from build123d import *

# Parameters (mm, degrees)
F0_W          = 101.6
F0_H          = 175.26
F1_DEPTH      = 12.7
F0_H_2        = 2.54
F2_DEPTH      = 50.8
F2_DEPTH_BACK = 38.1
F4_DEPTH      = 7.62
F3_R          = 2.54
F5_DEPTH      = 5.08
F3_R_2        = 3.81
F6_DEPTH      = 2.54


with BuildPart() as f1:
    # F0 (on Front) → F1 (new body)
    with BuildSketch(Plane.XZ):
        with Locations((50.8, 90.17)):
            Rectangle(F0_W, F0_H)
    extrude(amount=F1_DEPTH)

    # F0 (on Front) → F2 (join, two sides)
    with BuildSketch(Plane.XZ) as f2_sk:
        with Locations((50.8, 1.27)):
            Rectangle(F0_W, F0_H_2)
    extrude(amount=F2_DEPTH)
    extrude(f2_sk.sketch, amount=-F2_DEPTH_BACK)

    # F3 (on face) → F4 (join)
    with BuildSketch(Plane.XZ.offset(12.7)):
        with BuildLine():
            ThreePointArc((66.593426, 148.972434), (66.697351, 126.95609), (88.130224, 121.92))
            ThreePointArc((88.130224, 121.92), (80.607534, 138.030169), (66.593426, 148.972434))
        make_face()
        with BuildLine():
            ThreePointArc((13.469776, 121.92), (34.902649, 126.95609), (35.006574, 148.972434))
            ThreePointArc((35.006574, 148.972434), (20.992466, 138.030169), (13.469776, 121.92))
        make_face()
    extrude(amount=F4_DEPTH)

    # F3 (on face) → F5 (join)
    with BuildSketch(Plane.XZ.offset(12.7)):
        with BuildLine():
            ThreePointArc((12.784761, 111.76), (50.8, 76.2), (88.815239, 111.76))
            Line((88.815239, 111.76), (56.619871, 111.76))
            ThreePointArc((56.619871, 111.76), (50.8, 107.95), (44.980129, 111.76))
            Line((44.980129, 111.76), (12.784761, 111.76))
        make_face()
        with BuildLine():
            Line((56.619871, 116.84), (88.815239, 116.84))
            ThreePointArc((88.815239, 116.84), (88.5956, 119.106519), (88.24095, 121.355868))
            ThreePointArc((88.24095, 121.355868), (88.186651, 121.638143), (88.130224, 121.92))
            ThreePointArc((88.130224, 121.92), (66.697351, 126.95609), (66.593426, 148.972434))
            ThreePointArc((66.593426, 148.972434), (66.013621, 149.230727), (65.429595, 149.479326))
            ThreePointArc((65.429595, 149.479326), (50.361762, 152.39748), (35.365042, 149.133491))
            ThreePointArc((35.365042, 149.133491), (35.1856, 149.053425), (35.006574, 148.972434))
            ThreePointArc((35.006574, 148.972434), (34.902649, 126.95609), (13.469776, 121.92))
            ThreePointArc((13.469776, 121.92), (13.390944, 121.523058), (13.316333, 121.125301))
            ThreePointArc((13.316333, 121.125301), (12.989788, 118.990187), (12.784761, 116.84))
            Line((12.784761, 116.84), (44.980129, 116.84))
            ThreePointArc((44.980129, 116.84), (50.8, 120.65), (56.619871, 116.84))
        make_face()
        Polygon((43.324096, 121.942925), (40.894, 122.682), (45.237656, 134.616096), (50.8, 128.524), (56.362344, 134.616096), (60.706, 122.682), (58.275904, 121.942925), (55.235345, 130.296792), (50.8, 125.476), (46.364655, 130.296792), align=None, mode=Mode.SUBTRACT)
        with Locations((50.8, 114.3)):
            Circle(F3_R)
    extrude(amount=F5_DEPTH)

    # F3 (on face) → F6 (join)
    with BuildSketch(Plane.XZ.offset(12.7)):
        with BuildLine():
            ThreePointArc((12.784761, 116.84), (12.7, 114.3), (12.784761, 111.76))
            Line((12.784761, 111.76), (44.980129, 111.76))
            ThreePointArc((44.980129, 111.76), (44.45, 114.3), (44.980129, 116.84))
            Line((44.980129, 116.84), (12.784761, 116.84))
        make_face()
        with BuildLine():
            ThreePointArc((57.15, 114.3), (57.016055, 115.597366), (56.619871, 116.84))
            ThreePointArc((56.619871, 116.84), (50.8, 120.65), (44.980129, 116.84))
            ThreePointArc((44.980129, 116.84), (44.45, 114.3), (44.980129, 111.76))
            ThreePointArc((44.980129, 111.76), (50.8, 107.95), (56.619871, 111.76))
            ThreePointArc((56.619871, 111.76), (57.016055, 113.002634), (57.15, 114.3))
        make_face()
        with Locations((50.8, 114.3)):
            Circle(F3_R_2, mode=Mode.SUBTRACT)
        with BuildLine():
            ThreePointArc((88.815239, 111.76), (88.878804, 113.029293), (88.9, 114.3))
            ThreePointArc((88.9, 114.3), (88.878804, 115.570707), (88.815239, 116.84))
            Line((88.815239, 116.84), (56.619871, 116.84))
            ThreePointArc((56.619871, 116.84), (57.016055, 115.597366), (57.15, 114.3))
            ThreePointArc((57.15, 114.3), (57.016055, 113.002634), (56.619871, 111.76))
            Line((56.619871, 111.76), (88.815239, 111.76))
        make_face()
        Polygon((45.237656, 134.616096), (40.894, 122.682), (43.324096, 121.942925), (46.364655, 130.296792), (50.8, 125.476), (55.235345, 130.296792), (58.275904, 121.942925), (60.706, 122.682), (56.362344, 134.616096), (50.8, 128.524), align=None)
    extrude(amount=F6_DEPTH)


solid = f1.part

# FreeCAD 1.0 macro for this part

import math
import FreeCAD as App
import Part
import Sketcher
Q = App.Units.Quantity

doc = App.newDocument("Part")
body = doc.addObject("PartDesign::Body", "Body")

# Sketch on XZ plane
sketch1 = body.newObject("Sketcher::SketchObject", "Sketch")
sketch1.AttachmentSupport = (doc.getObject("XZ_Plane"), [""])
sketch1.MapMode = "FlatFace"
sketch1.addGeometry(Part.LineSegment(App.Vector(0, 178, 0), App.Vector(0, 3, 0)), False)
sketch1.addGeometry(Part.LineSegment(App.Vector(0, 3, 0), App.Vector(102, 3, 0)), False)
sketch1.addGeometry(Part.LineSegment(App.Vector(102, 3, 0), App.Vector(102, 178, 0)), False)
sketch1.addGeometry(Part.LineSegment(App.Vector(102, 178, 0), App.Vector(0, 178, 0)), False)
sketch1.addConstraint(Sketcher.Constraint("Coincident", 0, 2, 1, 1))
sketch1.addConstraint(Sketcher.Constraint("Coincident", 1, 2, 2, 1))
sketch1.addConstraint(Sketcher.Constraint("Coincident", 2, 2, 3, 1))
sketch1.addConstraint(Sketcher.Constraint("Coincident", 3, 2, 0, 1))
sketch1.addConstraint(Sketcher.Constraint("Vertical", 0))
sketch1.addConstraint(Sketcher.Constraint("Horizontal", 1))
sketch1.addConstraint(Sketcher.Constraint("Vertical", 2))
sketch1.addConstraint(Sketcher.Constraint("Horizontal", 3))
sketch1.addConstraint(Sketcher.Constraint("PointOnObject", 0, 2, -2))
sketch1.addConstraint(Sketcher.Constraint("DistanceX", 1, 1, 1, 2, Q("4 in")))
sketch1.addConstraint(Sketcher.Constraint("DistanceY", 0, 2, 0, 1, Q("6.9 in")))
sketch1.addConstraint(Sketcher.Constraint("DistanceY", -1, 1, 2, 2, Q("7 in")))
pad1 = body.newObject("PartDesign::Pad", "Pad")
pad1.Profile = sketch1
pad1.Length = Q("0.5 in")

# Sketch on XZ plane
sketch2 = body.newObject("Sketcher::SketchObject", "Sketch001")
sketch2.AttachmentSupport = (doc.getObject("XZ_Plane"), [""])
sketch2.MapMode = "FlatFace"
sketch2.addGeometry(Part.LineSegment(App.Vector(0, 2.5, 0), App.Vector(0, 0, 0)), False)
sketch2.addGeometry(Part.LineSegment(App.Vector(0, 0, 0), App.Vector(101.6, 0, 0)), False)
sketch2.addGeometry(Part.LineSegment(App.Vector(101.6, 0, 0), App.Vector(101.6, 2.5, 0)), False)
sketch2.addGeometry(Part.LineSegment(App.Vector(101.6, 2.5, 0), App.Vector(0, 2.5, 0)), False)
sketch2.addConstraint(Sketcher.Constraint("Coincident", 0, 2, 1, 1))
sketch2.addConstraint(Sketcher.Constraint("Coincident", 1, 2, 2, 1))
sketch2.addConstraint(Sketcher.Constraint("Coincident", 2, 2, 3, 1))
sketch2.addConstraint(Sketcher.Constraint("Coincident", 3, 2, 0, 1))
sketch2.addConstraint(Sketcher.Constraint("Vertical", 0))
sketch2.addConstraint(Sketcher.Constraint("Horizontal", 1))
sketch2.addConstraint(Sketcher.Constraint("Vertical", 2))
sketch2.addConstraint(Sketcher.Constraint("Horizontal", 3))
sketch2.addConstraint(Sketcher.Constraint("Coincident", 0, 2, -1, 1))
sketch2.addConstraint(Sketcher.Constraint("DistanceX", 1, 1, 1, 2, Q("4 in")))
sketch2.addConstraint(Sketcher.Constraint("DistanceY", 0, 2, 0, 1, Q("0.1 in")))
pad2 = body.newObject("PartDesign::Pad", "Pad001")
pad2.Profile = sketch2
pad2.Type = "TwoLengths"
pad2.Length = Q("2 in")
pad2.Length2 = Q("1.5 in")

# Sketch on XZ plane
sketch3 = body.newObject("Sketcher::SketchObject", "Sketch002")
sketch3.AttachmentSupport = (doc.getObject("XZ_Plane"), [""])
sketch3.MapMode = "FlatFace"
sketch3.AttachmentOffset = App.Placement(App.Vector(0, 0, 0.5 * 25.4), App.Rotation())
sketch3.addGeometry(Part.ArcOfCircle(Part.Circle(App.Vector(81, 138, 0), App.Vector(0, 0, 1), 18), math.radians(142), math.radians(295)), False)
sketch3.addGeometry(Part.ArcOfCircle(Part.Circle(App.Vector(51, 114, 0), App.Vector(0, 0, 1), 38), math.radians(12), math.radians(66)), False)
sketch3.addGeometry(Part.ArcOfCircle(Part.Circle(App.Vector(21, 138, 0), App.Vector(0, 0, 1), 18), math.radians(-115), math.radians(38)), False)
sketch3.addGeometry(Part.ArcOfCircle(Part.Circle(App.Vector(51, 114, 0), App.Vector(0, 0, 1), 38), math.radians(114), math.radians(168)), False)
sketch3.addConstraint(Sketcher.Constraint("Coincident", 0, 1, 1, 2))
sketch3.addConstraint(Sketcher.Constraint("Coincident", 1, 1, 0, 2))
sketch3.addConstraint(Sketcher.Constraint("Coincident", 2, 1, 3, 2))
sketch3.addConstraint(Sketcher.Constraint("Coincident", 3, 1, 2, 2))
sketch3.addConstraint(Sketcher.Constraint("Coincident", 3, 3, 1, 3))
sketch3.addConstraint(Sketcher.Constraint("Equal", 0, 2))
sketch3.addConstraint(Sketcher.Constraint("Equal", 1, 3))
sketch3.addConstraint(Sketcher.Constraint("Horizontal", 0, 3, 2, 3))
sketch3.addConstraint(Sketcher.Constraint("Horizontal", 1, 1, 2, 1))
sketch3.addConstraint(Sketcher.Constraint("Radius", 0, Q("0.7 in")))
sketch3.addConstraint(Sketcher.Constraint("Radius", 1, Q("1.5 in")))
sketch3.addConstraint(Sketcher.Constraint("DistanceX", -1, 1, 1, 3, Q("2 in")))
sketch3.addConstraint(Sketcher.Constraint("DistanceY", -1, 1, 1, 3, Q("4.5 in")))
sketch3.addConstraint(Sketcher.Constraint("DistanceY", -1, 1, 1, 1, Q("4.8 in")))
sketch3.addConstraint(Sketcher.Constraint("DistanceX", 0, 1, 1, 1, 21.536798))
pad3 = body.newObject("PartDesign::Pad", "Pad002")
pad3.Profile = sketch3
pad3.Length = Q("0.3 in")

# Sketch on XZ plane
sketch4 = body.newObject("Sketcher::SketchObject", "Sketch003")
sketch4.AttachmentSupport = (doc.getObject("XZ_Plane"), [""])
sketch4.MapMode = "FlatFace"
sketch4.AttachmentOffset = App.Placement(App.Vector(0, 0, 0.5 * 25.4), App.Rotation())
sketch4.addGeometry(Part.ArcOfCircle(Part.Circle(App.Vector(50.8, 114.3, 0), App.Vector(0, 0, 1), 38.1), math.radians(-176), math.radians(-4)), False)
sketch4.addGeometry(Part.LineSegment(App.Vector(88.82, 111.76, 0), App.Vector(56.62, 111.76, 0)), False)
sketch4.addGeometry(Part.ArcOfCircle(Part.Circle(App.Vector(50.8, 114.3, 0), App.Vector(0, 0, 1), 6.35), math.radians(-156), math.radians(-24)), False)
sketch4.addGeometry(Part.LineSegment(App.Vector(44.98, 111.76, 0), App.Vector(12.78, 111.76, 0)), False)
sketch4.addGeometry(Part.LineSegment(App.Vector(56.62, 116.84, 0), App.Vector(88.82, 116.84, 0)), False)
sketch4.addGeometry(Part.ArcOfCircle(Part.Circle(App.Vector(50.8, 114.3, 0), App.Vector(0, 0, 1), 38.1), math.radians(3.82), math.radians(10.67)), False)
sketch4.addGeometry(Part.ArcOfCircle(Part.Circle(App.Vector(50.8, 114.3, 0), App.Vector(0, 0, 1), 38.1), math.radians(10.67), math.radians(11.54)), False)
sketch4.addGeometry(Part.ArcOfCircle(Part.Circle(App.Vector(80.61, 138.03, 0), App.Vector(0, 0, 1), 17.78), math.radians(142), math.radians(295)), False)
sketch4.addGeometry(Part.ArcOfCircle(Part.Circle(App.Vector(50.8, 114.3, 0), App.Vector(0, 0, 1), 38.11), math.radians(65.51), math.radians(67.42)), False)
sketch4.addGeometry(Part.ArcOfCircle(Part.Circle(App.Vector(50.8, 114.3, 0), App.Vector(0, 0, 1), 38.1), math.radians(67), math.radians(114)), False)
sketch4.addGeometry(Part.ArcOfCircle(Part.Circle(App.Vector(50.79, 114.33, 0), App.Vector(0, 0, 1), 38.07), math.radians(113.9), math.radians(114.49)), False)
sketch4.addGeometry(Part.ArcOfCircle(Part.Circle(App.Vector(20.99, 138.03, 0), App.Vector(0, 0, 1), 17.78), math.radians(-115), math.radians(38)), False)
sketch4.addGeometry(Part.ArcOfCircle(Part.Circle(App.Vector(50.8, 114.3, 0), App.Vector(0, 0, 1), 38.1), math.radians(168.46), math.radians(169.68)), False)
sketch4.addGeometry(Part.ArcOfCircle(Part.Circle(App.Vector(50.8, 114.3, 0), App.Vector(0, 0, 1), 38.1), math.radians(169.68), math.radians(176.18)), False)
sketch4.addGeometry(Part.LineSegment(App.Vector(12.78, 116.84, 0), App.Vector(44.98, 116.84, 0)), False)
sketch4.addGeometry(Part.ArcOfCircle(Part.Circle(App.Vector(50.8, 114.3, 0), App.Vector(0, 0, 1), 6.35), math.radians(24), math.radians(156)), False)
sketch4.addGeometry(Part.LineSegment(App.Vector(46.36, 130.3, 0), App.Vector(43.32, 121.94, 0)), False)
sketch4.addGeometry(Part.LineSegment(App.Vector(43.32, 121.94, 0), App.Vector(40.89, 122.68, 0)), False)
sketch4.addGeometry(Part.LineSegment(App.Vector(40.89, 122.68, 0), App.Vector(45.24, 134.62, 0)), False)
sketch4.addGeometry(Part.LineSegment(App.Vector(45.24, 134.62, 0), App.Vector(50.8, 128.52, 0)), False)
sketch4.addGeometry(Part.LineSegment(App.Vector(50.8, 128.52, 0), App.Vector(56.36, 134.62, 0)), False)
sketch4.addGeometry(Part.LineSegment(App.Vector(56.36, 134.62, 0), App.Vector(60.71, 122.68, 0)), False)
sketch4.addGeometry(Part.LineSegment(App.Vector(60.71, 122.68, 0), App.Vector(58.28, 121.94, 0)), False)
sketch4.addGeometry(Part.LineSegment(App.Vector(58.28, 121.94, 0), App.Vector(55.24, 130.3, 0)), False)
sketch4.addGeometry(Part.LineSegment(App.Vector(55.24, 130.3, 0), App.Vector(50.8, 125.48, 0)), False)
sketch4.addGeometry(Part.LineSegment(App.Vector(50.8, 125.48, 0), App.Vector(46.36, 130.3, 0)), False)
sketch4.addGeometry(Part.Circle(App.Vector(50.8, 114.3, 0), App.Vector(0, 0, 1), 2.54), False)
sketch4.addConstraint(Sketcher.Constraint("Coincident", 0, 2, 1, 1))
sketch4.addConstraint(Sketcher.Constraint("Coincident", 1, 2, 2, 2))
sketch4.addConstraint(Sketcher.Constraint("Coincident", 2, 1, 3, 1))
sketch4.addConstraint(Sketcher.Constraint("Coincident", 3, 2, 0, 1))
sketch4.addConstraint(Sketcher.Constraint("Coincident", 4, 2, 5, 1))
sketch4.addConstraint(Sketcher.Constraint("Tangent", 5, 2, 6, 1))
sketch4.addConstraint(Sketcher.Constraint("Coincident", 6, 2, 7, 2))
sketch4.addConstraint(Sketcher.Constraint("Coincident", 7, 1, 8, 1))
sketch4.addConstraint(Sketcher.Constraint("Coincident", 8, 2, 9, 1))
sketch4.addConstraint(Sketcher.Constraint("Coincident", 9, 2, 10, 1))
sketch4.addConstraint(Sketcher.Constraint("Coincident", 10, 2, 11, 2))
sketch4.addConstraint(Sketcher.Constraint("Coincident", 11, 1, 12, 1))
sketch4.addConstraint(Sketcher.Constraint("Tangent", 12, 2, 13, 1))
sketch4.addConstraint(Sketcher.Constraint("Coincident", 13, 2, 14, 1))
sketch4.addConstraint(Sketcher.Constraint("Coincident", 14, 2, 15, 2))
sketch4.addConstraint(Sketcher.Constraint("Coincident", 15, 1, 4, 1))
sketch4.addConstraint(Sketcher.Constraint("Coincident", 16, 2, 17, 1))
sketch4.addConstraint(Sketcher.Constraint("Coincident", 17, 2, 18, 1))
sketch4.addConstraint(Sketcher.Constraint("Coincident", 18, 2, 19, 1))
sketch4.addConstraint(Sketcher.Constraint("Coincident", 19, 2, 20, 1))
sketch4.addConstraint(Sketcher.Constraint("Coincident", 20, 2, 21, 1))
sketch4.addConstraint(Sketcher.Constraint("Coincident", 21, 2, 22, 1))
sketch4.addConstraint(Sketcher.Constraint("Coincident", 22, 2, 23, 1))
sketch4.addConstraint(Sketcher.Constraint("Coincident", 23, 2, 24, 1))
sketch4.addConstraint(Sketcher.Constraint("Coincident", 24, 2, 25, 1))
sketch4.addConstraint(Sketcher.Constraint("Coincident", 25, 2, 16, 1))
sketch4.addConstraint(Sketcher.Constraint("Horizontal", 1))
sketch4.addConstraint(Sketcher.Constraint("Horizontal", 3))
sketch4.addConstraint(Sketcher.Constraint("Horizontal", 4))
sketch4.addConstraint(Sketcher.Constraint("Horizontal", 14))
sketch4.addConstraint(Sketcher.Constraint("Coincident", 2, 3, 0, 3))
sketch4.addConstraint(Sketcher.Constraint("Coincident", 5, 3, 0, 3))
sketch4.addConstraint(Sketcher.Constraint("Coincident", 9, 3, 0, 3))
sketch4.addConstraint(Sketcher.Constraint("Coincident", 15, 3, 0, 3))
sketch4.addConstraint(Sketcher.Constraint("Coincident", 26, 3, 0, 3))
sketch4.addConstraint(Sketcher.Constraint("Equal", 0, 9))
sketch4.addConstraint(Sketcher.Constraint("Equal", 7, 11))
sketch4.addConstraint(Sketcher.Constraint("Equal", 2, 15))
sketch4.addConstraint(Sketcher.Constraint("Parallel", 16, 18))
sketch4.addConstraint(Sketcher.Constraint("Parallel", 21, 23))
sketch4.addConstraint(Sketcher.Constraint("Horizontal", 7, 3, 11, 3))
sketch4.addConstraint(Sketcher.Constraint("Horizontal", 1, 2, 2, 1))
sketch4.addConstraint(Sketcher.Constraint("Horizontal", 7, 1, 10, 2))
sketch4.addConstraint(Sketcher.Constraint("Horizontal", 6, 2, 11, 1))
sketch4.addConstraint(Sketcher.Constraint("Horizontal", 4, 2, 13, 2))
sketch4.addConstraint(Sketcher.Constraint("Horizontal", 18, 2, 20, 2))
sketch4.addConstraint(Sketcher.Constraint("Horizontal", 17, 2, 21, 2))
sketch4.addConstraint(Sketcher.Constraint("Horizontal", 16, 2, 22, 2))
sketch4.addConstraint(Sketcher.Constraint("Horizontal", 23, 2, 25, 2))
sketch4.addConstraint(Sketcher.Constraint("Vertical", 0, 2, 4, 2))
sketch4.addConstraint(Sketcher.Constraint("Vertical", 3, 2, 13, 2))
sketch4.addConstraint(Sketcher.Constraint("Vertical", 2, 1, 14, 2))
sketch4.addConstraint(Sketcher.Constraint("Vertical", 26, 3, 19, 2))
sketch4.addConstraint(Sketcher.Constraint("Vertical", 19, 2, 24, 2))
sketch4.addConstraint(Sketcher.Constraint("Equal", 19, 20))
sketch4.addConstraint(Sketcher.Constraint("Equal", 18, 21))
sketch4.addConstraint(Sketcher.Constraint("Equal", 17, 22))
sketch4.addConstraint(Sketcher.Constraint("Diameter", 26, Q("0.2 in")))
sketch4.addConstraint(Sketcher.Constraint("Radius", 0, Q("1.5 in")))
sketch4.addConstraint(Sketcher.Constraint("Radius", 7, Q("0.7 in")))
sketch4.addConstraint(Sketcher.Constraint("Radius", 2, Q("0.25 in")))
sketch4.addConstraint(Sketcher.Constraint("DistanceX", -1, 1, 0, 3, Q("2 in")))
sketch4.addConstraint(Sketcher.Constraint("Angle", 16, Q("-110 deg")))
sketch4.addConstraint(Sketcher.Constraint("Distance", 17, Q("0.1 in")))
sketch4.addConstraint(Sketcher.Constraint("Distance", 18, Q("0.5 in")))
sketch4.addConstraint(Sketcher.Constraint("DistanceY", -1, 1, 0, 3, Q("4.5 in")))
sketch4.addConstraint(Sketcher.Constraint("DistanceY", -1, 1, 0, 2, Q("4.4 in")))
sketch4.addConstraint(Sketcher.Constraint("DistanceY", -1, 1, 6, 2, Q("4.8 in")))
sketch4.addConstraint(Sketcher.Constraint("Distance", 16, Q("0.35 in")))
sketch4.addConstraint(Sketcher.Constraint("DistanceX", -1, 1, 17, 2, Q("1.61 in")))
sketch4.addConstraint(Sketcher.Constraint("DistanceY", -1, 1, 17, 2, Q("4.83 in")))
sketch4.addConstraint(Sketcher.Constraint("DistanceY", -1, 1, 19, 2, Q("5.06 in")))
sketch4.addConstraint(Sketcher.Constraint("DistanceY", -1, 1, 24, 2, Q("4.94 in")))
sketch4.addConstraint(Sketcher.Constraint("Radius", 8, 38.105041))
sketch4.addConstraint(Sketcher.Constraint("Radius", 12, 38.09698))
sketch4.addConstraint(Sketcher.Constraint("Radius", 6, 38.100613))
sketch4.addConstraint(Sketcher.Constraint("Radius", 10, 38.067873))
sketch4.addConstraint(Sketcher.Constraint("Radius", 13, 38.100206))
sketch4.addConstraint(Sketcher.Constraint("DistanceY", -1, 1, 12, 2, 121.125301))
sketch4.addConstraint(Sketcher.Constraint("DistanceY", 5, 2, 7, 3, 16.6743))
sketch4.addConstraint(Sketcher.Constraint("DistanceY", 10, 3, 8, 2, 35.15))
sketch4.addConstraint(Sketcher.Constraint("DistanceY", 10, 3, 16, 2, 7.613599))
sketch4.addConstraint(Sketcher.Constraint("DistanceX", 16, 2, 6, 3, 7.4753))
sketch4.addConstraint(Sketcher.Constraint("DistanceY", -1, 1, 7, 3, 138.030168))
sketch4.addConstraint(Sketcher.Constraint("DistanceX", -1, 1, 8, 3, 50.797971))
sketch4.addConstraint(Sketcher.Constraint("DistanceX", -1, 1, 9, 2, 35.365042))
pad4 = body.newObject("PartDesign::Pad", "Pad003")
pad4.Profile = sketch4
pad4.Length = Q("0.2 in")

# Sketch on XZ plane
sketch5 = body.newObject("Sketcher::SketchObject", "Sketch004")
sketch5.AttachmentSupport = (doc.getObject("XZ_Plane"), [""])
sketch5.MapMode = "FlatFace"
sketch5.AttachmentOffset = App.Placement(App.Vector(0, 0, 0.5 * 25.4), App.Rotation())
sketch5.addGeometry(Part.ArcOfCircle(Part.Circle(App.Vector(50.8, 114.3, 0), App.Vector(0, 0, 1), 38.1), math.radians(176.18), math.radians(183.82)), False)
sketch5.addGeometry(Part.LineSegment(App.Vector(12.8, 111.8, 0), App.Vector(45, 111.8, 0)), False)
sketch5.addGeometry(Part.ArcOfCircle(Part.Circle(App.Vector(50.8, 114.3, 0), App.Vector(0, 0, 1), 6.3), math.radians(-156), math.radians(-24)), False)
sketch5.addGeometry(Part.LineSegment(App.Vector(56.6, 111.8, 0), App.Vector(88.8, 111.8, 0)), False)
sketch5.addGeometry(Part.ArcOfCircle(Part.Circle(App.Vector(50.8, 114.3, 0), App.Vector(0, 0, 1), 38.1), math.radians(-3.82), math.radians(0)), False)
sketch5.addGeometry(Part.ArcOfCircle(Part.Circle(App.Vector(50.8, 114.3, 0), App.Vector(0, 0, 1), 38.1), math.radians(0), math.radians(3.82)), False)
sketch5.addGeometry(Part.LineSegment(App.Vector(88.8, 116.8, 0), App.Vector(56.6, 116.8, 0)), False)
sketch5.addGeometry(Part.ArcOfCircle(Part.Circle(App.Vector(50.8, 114.3, 0), App.Vector(0, 0, 1), 6.3), math.radians(24), math.radians(156)), False)
sketch5.addGeometry(Part.LineSegment(App.Vector(45, 116.8, 0), App.Vector(12.8, 116.8, 0)), False)
sketch5.addGeometry(Part.Circle(App.Vector(50.8, 114.3, 0), App.Vector(0, 0, 1), 3.8), False)
sketch5.addGeometry(Part.LineSegment(App.Vector(45.2, 134.6, 0), App.Vector(40.9, 122.7, 0)), False)
sketch5.addGeometry(Part.LineSegment(App.Vector(40.9, 122.7, 0), App.Vector(43.3, 121.9, 0)), False)
sketch5.addGeometry(Part.LineSegment(App.Vector(43.3, 121.9, 0), App.Vector(46.4, 130.3, 0)), False)
sketch5.addGeometry(Part.LineSegment(App.Vector(46.4, 130.3, 0), App.Vector(50.8, 125.5, 0)), False)
sketch5.addGeometry(Part.LineSegment(App.Vector(50.8, 125.5, 0), App.Vector(55.2, 130.3, 0)), False)
sketch5.addGeometry(Part.LineSegment(App.Vector(55.2, 130.3, 0), App.Vector(58.3, 121.9, 0)), False)
sketch5.addGeometry(Part.LineSegment(App.Vector(58.3, 121.9, 0), App.Vector(60.7, 122.7, 0)), False)
sketch5.addGeometry(Part.LineSegment(App.Vector(60.7, 122.7, 0), App.Vector(56.4, 134.6, 0)), False)
sketch5.addGeometry(Part.LineSegment(App.Vector(56.4, 134.6, 0), App.Vector(50.8, 128.5, 0)), False)
sketch5.addGeometry(Part.LineSegment(App.Vector(50.8, 128.5, 0), App.Vector(45.2, 134.6, 0)), False)
sketch5.addConstraint(Sketcher.Constraint("Coincident", 0, 2, 1, 1))
sketch5.addConstraint(Sketcher.Constraint("Coincident", 1, 2, 2, 1))
sketch5.addConstraint(Sketcher.Constraint("Coincident", 2, 2, 3, 1))
sketch5.addConstraint(Sketcher.Constraint("Coincident", 3, 2, 4, 1))
sketch5.addConstraint(Sketcher.Constraint("Tangent", 4, 2, 5, 1))
sketch5.addConstraint(Sketcher.Constraint("Coincident", 5, 2, 6, 1))
sketch5.addConstraint(Sketcher.Constraint("Coincident", 6, 2, 7, 1))
sketch5.addConstraint(Sketcher.Constraint("Coincident", 7, 2, 8, 1))
sketch5.addConstraint(Sketcher.Constraint("Coincident", 8, 2, 0, 1))
sketch5.addConstraint(Sketcher.Constraint("Coincident", 10, 2, 11, 1))
sketch5.addConstraint(Sketcher.Constraint("Coincident", 11, 2, 12, 1))
sketch5.addConstraint(Sketcher.Constraint("Coincident", 12, 2, 13, 1))
sketch5.addConstraint(Sketcher.Constraint("Coincident", 13, 2, 14, 1))
sketch5.addConstraint(Sketcher.Constraint("Coincident", 14, 2, 15, 1))
sketch5.addConstraint(Sketcher.Constraint("Coincident", 15, 2, 16, 1))
sketch5.addConstraint(Sketcher.Constraint("Coincident", 16, 2, 17, 1))
sketch5.addConstraint(Sketcher.Constraint("Coincident", 17, 2, 18, 1))
sketch5.addConstraint(Sketcher.Constraint("Coincident", 18, 2, 19, 1))
sketch5.addConstraint(Sketcher.Constraint("Coincident", 19, 2, 10, 1))
sketch5.addConstraint(Sketcher.Constraint("Horizontal", 1))
sketch5.addConstraint(Sketcher.Constraint("Horizontal", 3))
sketch5.addConstraint(Sketcher.Constraint("Horizontal", 6))
sketch5.addConstraint(Sketcher.Constraint("Horizontal", 8))
sketch5.addConstraint(Sketcher.Constraint("Coincident", 7, 3, 2, 3))
sketch5.addConstraint(Sketcher.Constraint("Coincident", 9, 3, 2, 3))
sketch5.addConstraint(Sketcher.Constraint("Equal", 4, 5))
sketch5.addConstraint(Sketcher.Constraint("Equal", 2, 7))
sketch5.addConstraint(Sketcher.Constraint("Parallel", 10, 12))
sketch5.addConstraint(Sketcher.Constraint("Parallel", 15, 17))
sketch5.addConstraint(Sketcher.Constraint("Horizontal", 0, 3, 2, 3))
sketch5.addConstraint(Sketcher.Constraint("Horizontal", 1, 2, 2, 2))
sketch5.addConstraint(Sketcher.Constraint("Horizontal", 9, 3, 4, 2))
sketch5.addConstraint(Sketcher.Constraint("Horizontal", 6, 2, 7, 2))
sketch5.addConstraint(Sketcher.Constraint("Horizontal", 12, 2, 14, 2))
sketch5.addConstraint(Sketcher.Constraint("Horizontal", 11, 2, 15, 2))
sketch5.addConstraint(Sketcher.Constraint("Horizontal", 10, 2, 16, 2))
sketch5.addConstraint(Sketcher.Constraint("Horizontal", 17, 2, 19, 2))
sketch5.addConstraint(Sketcher.Constraint("Vertical", 3, 2, 5, 2))
sketch5.addConstraint(Sketcher.Constraint("Vertical", 2, 2, 6, 2))
sketch5.addConstraint(Sketcher.Constraint("Vertical", 9, 3, 13, 2))
sketch5.addConstraint(Sketcher.Constraint("Vertical", 13, 2, 18, 2))
sketch5.addConstraint(Sketcher.Constraint("Equal", 1, 3))
sketch5.addConstraint(Sketcher.Constraint("Equal", 13, 14))
sketch5.addConstraint(Sketcher.Constraint("Equal", 12, 15))
sketch5.addConstraint(Sketcher.Constraint("Equal", 11, 16))
sketch5.addConstraint(Sketcher.Constraint("Diameter", 9, Q("0.3 in")))
sketch5.addConstraint(Sketcher.Constraint("Radius", 2, Q("0.25 in")))
sketch5.addConstraint(Sketcher.Constraint("DistanceX", -1, 1, 2, 3, Q("2 in")))
sketch5.addConstraint(Sketcher.Constraint("Angle", 10, Q("-110.000001 deg")))
sketch5.addConstraint(Sketcher.Constraint("Distance", 10, Q("0.5 in")))
sketch5.addConstraint(Sketcher.Constraint("Distance", 11, Q("0.1 in")))
sketch5.addConstraint(Sketcher.Constraint("DistanceY", -1, 1, 0, 3, Q("4.5 in")))
sketch5.addConstraint(Sketcher.Constraint("DistanceY", -1, 1, 0, 2, Q("4.4 in")))
sketch5.addConstraint(Sketcher.Constraint("DistanceX", -1, 1, 4, 2, Q("3.5 in")))
sketch5.addConstraint(Sketcher.Constraint("Distance", 12, Q("0.35 in")))
sketch5.addConstraint(Sketcher.Constraint("DistanceX", -1, 1, 10, 2, Q("1.61 in")))
sketch5.addConstraint(Sketcher.Constraint("DistanceY", -1, 1, 10, 2, Q("4.83 in")))
sketch5.addConstraint(Sketcher.Constraint("DistanceY", -1, 1, 13, 2, Q("4.94 in")))
sketch5.addConstraint(Sketcher.Constraint("DistanceY", -1, 1, 18, 2, Q("5.06 in")))
sketch5.addConstraint(Sketcher.Constraint("Radius", 4, 38.099711))
sketch5.addConstraint(Sketcher.Constraint("Radius", 0, 38.099978))
sketch5.addConstraint(Sketcher.Constraint("DistanceX", 14, 2, 17, 2, 1.126999))
pad5 = body.newObject("PartDesign::Pad", "Pad004")
pad5.Profile = sketch5
pad5.Length = Q("0.1 in")

doc.recompute()
